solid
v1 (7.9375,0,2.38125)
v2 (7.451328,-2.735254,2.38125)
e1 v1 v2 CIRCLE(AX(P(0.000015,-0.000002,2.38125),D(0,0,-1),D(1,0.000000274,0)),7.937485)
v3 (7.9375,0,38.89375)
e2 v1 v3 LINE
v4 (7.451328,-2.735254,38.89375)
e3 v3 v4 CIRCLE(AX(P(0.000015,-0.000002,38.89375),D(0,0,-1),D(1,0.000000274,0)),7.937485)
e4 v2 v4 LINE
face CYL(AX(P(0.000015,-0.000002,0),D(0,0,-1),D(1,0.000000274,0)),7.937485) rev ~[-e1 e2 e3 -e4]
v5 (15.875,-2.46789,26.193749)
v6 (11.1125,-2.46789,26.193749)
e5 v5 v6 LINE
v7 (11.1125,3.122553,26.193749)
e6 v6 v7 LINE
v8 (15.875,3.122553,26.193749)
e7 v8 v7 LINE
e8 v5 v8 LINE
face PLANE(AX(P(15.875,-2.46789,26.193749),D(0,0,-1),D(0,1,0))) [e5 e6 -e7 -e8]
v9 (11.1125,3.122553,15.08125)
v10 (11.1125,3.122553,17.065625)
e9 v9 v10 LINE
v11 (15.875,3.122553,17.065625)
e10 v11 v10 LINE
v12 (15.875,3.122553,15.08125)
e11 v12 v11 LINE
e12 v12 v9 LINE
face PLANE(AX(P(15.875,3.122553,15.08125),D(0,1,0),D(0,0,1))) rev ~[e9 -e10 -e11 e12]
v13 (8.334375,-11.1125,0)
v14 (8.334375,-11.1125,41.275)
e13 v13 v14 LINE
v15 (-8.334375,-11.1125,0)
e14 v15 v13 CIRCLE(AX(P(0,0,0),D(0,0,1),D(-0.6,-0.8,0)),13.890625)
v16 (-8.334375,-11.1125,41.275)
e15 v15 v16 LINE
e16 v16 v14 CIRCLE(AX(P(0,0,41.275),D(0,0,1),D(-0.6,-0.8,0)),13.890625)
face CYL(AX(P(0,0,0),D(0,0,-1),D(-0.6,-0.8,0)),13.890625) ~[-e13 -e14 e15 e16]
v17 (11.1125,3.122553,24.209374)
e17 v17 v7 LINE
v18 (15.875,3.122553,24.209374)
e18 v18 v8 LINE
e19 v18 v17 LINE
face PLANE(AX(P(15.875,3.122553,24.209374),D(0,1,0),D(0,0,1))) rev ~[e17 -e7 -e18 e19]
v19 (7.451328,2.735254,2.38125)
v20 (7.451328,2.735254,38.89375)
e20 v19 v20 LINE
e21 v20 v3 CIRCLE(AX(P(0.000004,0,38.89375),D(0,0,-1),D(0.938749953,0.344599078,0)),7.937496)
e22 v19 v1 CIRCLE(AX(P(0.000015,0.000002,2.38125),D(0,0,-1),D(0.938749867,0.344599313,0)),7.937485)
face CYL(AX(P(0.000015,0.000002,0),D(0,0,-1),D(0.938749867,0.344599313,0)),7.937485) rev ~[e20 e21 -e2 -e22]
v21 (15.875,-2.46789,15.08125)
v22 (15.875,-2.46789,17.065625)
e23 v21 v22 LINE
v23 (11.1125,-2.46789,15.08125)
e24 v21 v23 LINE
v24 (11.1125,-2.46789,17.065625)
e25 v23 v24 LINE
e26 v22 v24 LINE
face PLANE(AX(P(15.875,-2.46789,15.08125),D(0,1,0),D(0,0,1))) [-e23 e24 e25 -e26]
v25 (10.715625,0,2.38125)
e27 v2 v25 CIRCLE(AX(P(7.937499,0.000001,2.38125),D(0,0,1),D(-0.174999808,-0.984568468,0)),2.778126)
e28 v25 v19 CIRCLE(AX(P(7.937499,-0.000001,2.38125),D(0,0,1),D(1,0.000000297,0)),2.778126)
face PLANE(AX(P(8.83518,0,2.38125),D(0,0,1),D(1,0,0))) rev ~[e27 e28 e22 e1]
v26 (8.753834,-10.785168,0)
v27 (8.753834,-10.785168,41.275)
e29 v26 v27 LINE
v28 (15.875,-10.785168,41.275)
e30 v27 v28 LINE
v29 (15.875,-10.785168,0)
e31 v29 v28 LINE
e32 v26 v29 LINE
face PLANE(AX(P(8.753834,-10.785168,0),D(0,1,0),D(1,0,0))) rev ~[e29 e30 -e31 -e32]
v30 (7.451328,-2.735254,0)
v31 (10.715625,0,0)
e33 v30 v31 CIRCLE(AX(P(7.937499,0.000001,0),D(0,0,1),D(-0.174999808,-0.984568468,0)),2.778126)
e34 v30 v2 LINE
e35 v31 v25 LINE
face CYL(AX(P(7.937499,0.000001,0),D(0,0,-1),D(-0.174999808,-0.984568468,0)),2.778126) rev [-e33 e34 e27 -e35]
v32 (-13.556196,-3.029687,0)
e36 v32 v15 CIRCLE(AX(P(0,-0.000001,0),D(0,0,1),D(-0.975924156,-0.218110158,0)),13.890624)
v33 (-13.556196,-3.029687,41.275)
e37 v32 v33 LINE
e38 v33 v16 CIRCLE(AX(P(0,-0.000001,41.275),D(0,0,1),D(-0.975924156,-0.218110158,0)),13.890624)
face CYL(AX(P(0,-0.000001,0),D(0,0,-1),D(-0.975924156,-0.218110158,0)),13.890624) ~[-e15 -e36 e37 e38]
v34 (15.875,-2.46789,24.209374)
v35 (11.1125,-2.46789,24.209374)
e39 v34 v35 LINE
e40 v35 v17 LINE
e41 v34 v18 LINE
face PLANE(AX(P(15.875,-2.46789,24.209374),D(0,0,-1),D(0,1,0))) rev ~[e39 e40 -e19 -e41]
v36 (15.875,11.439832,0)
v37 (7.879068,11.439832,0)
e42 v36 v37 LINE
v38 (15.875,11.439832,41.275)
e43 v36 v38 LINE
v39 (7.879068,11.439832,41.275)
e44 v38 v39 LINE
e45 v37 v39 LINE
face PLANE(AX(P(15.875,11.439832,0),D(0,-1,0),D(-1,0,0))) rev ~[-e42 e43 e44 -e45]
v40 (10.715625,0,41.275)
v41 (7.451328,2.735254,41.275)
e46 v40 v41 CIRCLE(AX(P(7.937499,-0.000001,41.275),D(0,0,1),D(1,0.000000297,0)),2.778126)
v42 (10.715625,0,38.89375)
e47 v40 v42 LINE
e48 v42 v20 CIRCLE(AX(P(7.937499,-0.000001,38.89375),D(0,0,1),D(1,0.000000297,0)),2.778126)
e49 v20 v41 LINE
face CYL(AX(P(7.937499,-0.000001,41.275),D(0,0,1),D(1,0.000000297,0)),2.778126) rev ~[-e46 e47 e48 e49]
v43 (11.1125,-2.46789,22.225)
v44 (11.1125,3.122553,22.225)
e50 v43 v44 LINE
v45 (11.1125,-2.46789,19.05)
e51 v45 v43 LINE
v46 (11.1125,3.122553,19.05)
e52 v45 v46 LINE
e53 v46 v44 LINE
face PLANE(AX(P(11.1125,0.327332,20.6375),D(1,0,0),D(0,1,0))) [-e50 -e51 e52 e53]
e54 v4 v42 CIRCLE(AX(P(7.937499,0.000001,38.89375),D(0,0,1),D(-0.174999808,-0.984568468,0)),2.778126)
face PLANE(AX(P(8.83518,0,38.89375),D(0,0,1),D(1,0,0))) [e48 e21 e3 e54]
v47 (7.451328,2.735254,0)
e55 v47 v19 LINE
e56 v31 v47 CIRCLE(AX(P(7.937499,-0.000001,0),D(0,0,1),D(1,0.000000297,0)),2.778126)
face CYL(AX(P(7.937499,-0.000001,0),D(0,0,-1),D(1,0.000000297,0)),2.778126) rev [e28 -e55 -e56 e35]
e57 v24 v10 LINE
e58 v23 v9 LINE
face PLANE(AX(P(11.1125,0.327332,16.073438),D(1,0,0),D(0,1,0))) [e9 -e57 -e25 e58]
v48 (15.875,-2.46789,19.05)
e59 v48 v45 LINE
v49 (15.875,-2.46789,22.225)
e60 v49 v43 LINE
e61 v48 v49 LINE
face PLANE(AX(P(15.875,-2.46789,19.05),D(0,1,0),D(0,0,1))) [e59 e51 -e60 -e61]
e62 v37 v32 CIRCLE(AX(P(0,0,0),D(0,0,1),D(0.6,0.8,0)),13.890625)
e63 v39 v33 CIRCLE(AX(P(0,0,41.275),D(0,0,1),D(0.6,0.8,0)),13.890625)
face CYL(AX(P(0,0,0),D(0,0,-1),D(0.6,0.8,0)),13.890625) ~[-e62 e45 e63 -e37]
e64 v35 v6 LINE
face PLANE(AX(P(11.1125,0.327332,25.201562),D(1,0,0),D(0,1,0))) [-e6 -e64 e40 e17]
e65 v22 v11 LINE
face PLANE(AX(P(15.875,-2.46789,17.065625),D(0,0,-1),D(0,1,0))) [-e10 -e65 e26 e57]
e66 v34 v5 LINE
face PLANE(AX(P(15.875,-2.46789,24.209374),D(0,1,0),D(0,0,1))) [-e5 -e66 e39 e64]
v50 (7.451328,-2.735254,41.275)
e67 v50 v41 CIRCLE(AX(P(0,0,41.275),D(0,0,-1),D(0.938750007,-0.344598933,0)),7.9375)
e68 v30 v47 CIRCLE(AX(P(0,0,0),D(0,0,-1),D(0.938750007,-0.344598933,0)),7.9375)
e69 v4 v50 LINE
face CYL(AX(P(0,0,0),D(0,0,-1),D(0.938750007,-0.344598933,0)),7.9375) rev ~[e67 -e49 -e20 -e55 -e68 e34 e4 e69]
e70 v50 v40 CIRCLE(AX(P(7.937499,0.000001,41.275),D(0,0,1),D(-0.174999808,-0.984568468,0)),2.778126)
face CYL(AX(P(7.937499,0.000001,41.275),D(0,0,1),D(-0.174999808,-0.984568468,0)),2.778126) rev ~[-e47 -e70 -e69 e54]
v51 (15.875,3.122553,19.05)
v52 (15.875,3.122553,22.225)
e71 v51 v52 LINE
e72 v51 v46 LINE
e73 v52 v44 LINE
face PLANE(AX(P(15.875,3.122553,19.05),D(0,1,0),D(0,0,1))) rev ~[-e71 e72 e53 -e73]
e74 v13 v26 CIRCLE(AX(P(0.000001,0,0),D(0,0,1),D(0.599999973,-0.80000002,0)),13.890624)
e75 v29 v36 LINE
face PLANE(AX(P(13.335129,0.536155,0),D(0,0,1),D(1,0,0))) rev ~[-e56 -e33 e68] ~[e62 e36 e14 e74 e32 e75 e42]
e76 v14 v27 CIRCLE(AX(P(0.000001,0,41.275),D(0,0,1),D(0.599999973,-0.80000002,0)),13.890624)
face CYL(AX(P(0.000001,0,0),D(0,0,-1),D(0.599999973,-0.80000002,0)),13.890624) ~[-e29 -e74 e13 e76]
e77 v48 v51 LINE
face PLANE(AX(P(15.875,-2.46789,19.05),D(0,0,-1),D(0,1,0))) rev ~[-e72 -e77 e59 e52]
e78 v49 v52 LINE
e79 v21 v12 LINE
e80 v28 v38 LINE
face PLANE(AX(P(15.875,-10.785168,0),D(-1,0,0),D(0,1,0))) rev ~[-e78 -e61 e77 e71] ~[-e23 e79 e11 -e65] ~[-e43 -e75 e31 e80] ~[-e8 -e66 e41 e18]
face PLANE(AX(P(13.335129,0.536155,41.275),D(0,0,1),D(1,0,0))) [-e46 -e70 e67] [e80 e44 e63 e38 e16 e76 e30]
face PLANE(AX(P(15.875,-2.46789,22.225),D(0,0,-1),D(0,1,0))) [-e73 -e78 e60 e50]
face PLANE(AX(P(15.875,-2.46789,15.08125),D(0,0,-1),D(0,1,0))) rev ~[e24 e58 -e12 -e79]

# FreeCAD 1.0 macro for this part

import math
import FreeCAD as App
import Part
import Sketcher
Q = App.Units.Quantity

doc = App.newDocument("Part")
params = doc.addObject("Spreadsheet::Sheet", "Params")
for row, (alias, value) in enumerate([
    ("sketch1_radius", "0.546875 in"),
    ("sketch1_radius2", "0.3125 in"),
    ("pad1_length", "1.625 in"),
    ("sketch2_radius", "0.546875 in"),
    ("sketch2_height", "0.875 in"),
    ("pad2_length", "1.625 in"),
    ("sketch3_height", "0.078125 in"),
    ("sketch3_height2", "0.125 in"),
    ("pocket1_length", "0.1875 in"),
    ("sketch4_radius", "0.109375 in"),
    ("pocket2_length", "0.09375 in"),
    ("sketch5_radius", "0.109375 in"),
    ("pocket3_length", "0.09375 in"),
], start=1):
    params.set(f"A{row}", alias)
    params.set(f"B{row}", "=" + value)
    params.setAlias(f"B{row}", alias)

body = doc.addObject("PartDesign::Body", "Body")

sketch1 = doc.addObject("Sketcher::SketchObject", "Sketch")
body.addObject(sketch1)
sketch1.AttachmentSupport = (doc.XY_Plane, [""])
sketch1.MapMode = "FlatFace"
sketch1.addGeometry([
    Part.ArcOfCircle(Part.Circle(App.Vector(0.000001, 0, 0), App.Vector(0, 0, 1), 13.890624), math.radians(-53.130104), math.radians(0.000002)),
    Part.ArcOfCircle(Part.Circle(App.Vector(0.000001, 0, 0), App.Vector(0, 0, 1), 13.890624), math.radians(-0.000002), math.radians(53.130104)),
    Part.ArcOfCircle(Part.Circle(App.Vector(0, 0, 0), App.Vector(0, 0, 1), 13.890625), math.radians(53.130102), math.radians(192.598061)),
    Part.ArcOfCircle(Part.Circle(App.Vector(0, -0.000001, 0), App.Vector(0, 0, 1), 13.890624), math.radians(-167.401942), math.radians(-126.869899)),
    Part.ArcOfCircle(Part.Circle(App.Vector(0, 0, 0), App.Vector(0, 0, 1), 13.890625), math.radians(-126.869898), math.radians(-53.130102)),
    Part.ArcOfCircle(Part.Circle(App.Vector(0, 0, 0), App.Vector(0, 0, 1), 7.9375), math.radians(20.157315), math.radians(339.842685)),
    Part.ArcOfCircle(Part.Circle(App.Vector(0.000015, 0.000002, 0), App.Vector(0, 0, 1), 7.937485), math.radians(-0.000016), math.radians(20.157338)),
    Part.ArcOfCircle(Part.Circle(App.Vector(0.000015, -0.000002, 0), App.Vector(0, 0, 1), 7.937485), math.radians(-20.157338), math.radians(0.000016)),
], False)
sketch1.addConstraint([
    Sketcher.Constraint("Tangent", 0, 2, 1, 1),
    Sketcher.Constraint("Tangent", 1, 2, 2, 1),
    Sketcher.Constraint("Tangent", 2, 2, 3, 1),
    Sketcher.Constraint("Tangent", 3, 2, 4, 1),
    Sketcher.Constraint("Tangent", 4, 2, 0, 1),
    Sketcher.Constraint("Tangent", 5, 1, 6, 2),
    Sketcher.Constraint("Tangent", 6, 1, 7, 2),
    Sketcher.Constraint("Tangent", 7, 1, 5, 2),
    Sketcher.Constraint("Coincident", 0, 3, -1, 1),
    Sketcher.Constraint("Coincident", 2, 3, -1, 1),
    Sketcher.Constraint("Coincident", 5, 3, -1, 1),
    Sketcher.Constraint("PointOnObject", 0, 2, -1),
    Sketcher.Constraint("PointOnObject", 6, 1, -1),
    Sketcher.Constraint("Horizontal", 3, 2, 4, 2),
    Sketcher.Constraint("Vertical", 1, 2, 4, 2),
    Sketcher.Constraint("Vertical", 5, 1, 7, 1),
    Sketcher.Constraint("Radius", 0, Q("0.546875 in")),
    Sketcher.Constraint("Radius", 5, Q("0.3125 in")),
    Sketcher.Constraint("DistanceX", -1, 1, 1, 2, Q("0.328125 in")),
    Sketcher.Constraint("DistanceX", -1, 1, 5, 1, 7.451328),
    Sketcher.Constraint("DistanceX", 2, 2, 3, 2, 5.221821),
])
sketch1.setExpression("Constraints[16]", "Params.sketch1_radius")
sketch1.setExpression("Constraints[17]", "Params.sketch1_radius2")
pad1 = doc.addObject("PartDesign::Pad", "Pad")
body.addObject(pad1)
pad1.Profile = sketch1
pad1.setExpression("Length", "Params.pad1_length")

sketch2 = doc.addObject("Sketcher::SketchObject", "Sketch001")
body.addObject(sketch2)
sketch2.AttachmentSupport = (doc.XY_Plane, [""])
sketch2.MapMode = "FlatFace"
sketch2.addGeometry([
    Part.ArcOfCircle(Part.Circle(App.Vector(0, 0, 0), App.Vector(0, 0, 1), 13.890625), math.radians(-0.000001), math.radians(55.443267)),
    Part.ArcOfCircle(Part.Circle(App.Vector(0.000002, -0.000001, 0), App.Vector(0, 0, 1), 13.890623), math.radians(-50.935324), math.radians(0.000002)),
    Part.LineSegment(App.Vector(8.753834, -10.785168, 0), App.Vector(15.875, -10.785168, 0)),
    Part.LineSegment(App.Vector(15.875, -10.785168, 0), App.Vector(15.875, 11.439832, 0)),
    Part.LineSegment(App.Vector(15.875, 11.439832, 0), App.Vector(7.879068, 11.439832, 0)),
], False)
sketch2.addConstraint([
    Sketcher.Constraint("Tangent", 0, 1, 1, 2),
    Sketcher.Constraint("Coincident", 1, 1, 2, 1),
    Sketcher.Constraint("Coincident", 2, 2, 3, 1),
    Sketcher.Constraint("Coincident", 3, 2, 4, 1),
    Sketcher.Constraint("Coincident", 4, 2, 0, 2),
    Sketcher.Constraint("Horizontal", 2),
    Sketcher.Constraint("Vertical", 3),
    Sketcher.Constraint("Horizontal", 4),
    Sketcher.Constraint("Coincident", 0, 3, -1, 1),
    Sketcher.Constraint("Equal", 0, 1),
    Sketcher.Constraint("PointOnObject", 0, 1, -1),
    Sketcher.Constraint("Radius", 0, Q("0.546875 in")),
    Sketcher.Constraint("DistanceY", 3, 1, 3, 2, Q("0.875 in")),
    Sketcher.Constraint("DistanceX", -1, 1, 2, 2, Q("0.625 in")),
    Sketcher.Constraint("DistanceX", 4, 2, 4, 1, 7.995932),
])
sketch2.setExpression("Constraints[11]", "Params.sketch2_radius")
sketch2.setExpression("Constraints[12]", "Params.sketch2_height")
pad2 = doc.addObject("PartDesign::Pad", "Pad001")
body.addObject(pad2)
pad2.Profile = sketch2
pad2.setExpression("Length", "Params.pad2_length")

sketch3 = doc.addObject("Sketcher::SketchObject", "Sketch002")
body.addObject(sketch3)
sketch3.AttachmentSupport = (doc.YZ_Plane, [""])
sketch3.MapMode = "FlatFace"
sketch3.AttachmentOffset = App.Placement(App.Vector(0, 0, 0.625 * 25.4), App.Rotation())
sketch3.addGeometry([
    Part.LineSegment(App.Vector(-2.46789, 26.193749, 0), App.Vector(-2.46789, 24.209374, 0)),
    Part.LineSegment(App.Vector(-2.46789, 24.209374, 0), App.Vector(3.122553, 24.209374, 0)),
    Part.LineSegment(App.Vector(3.122553, 24.209374, 0), App.Vector(3.122553, 26.193749, 0)),
    Part.LineSegment(App.Vector(3.122553, 26.193749, 0), App.Vector(-2.46789, 26.193749, 0)),
    Part.LineSegment(App.Vector(-2.46789, 22.225, 0), App.Vector(-2.46789, 19.05, 0)),
    Part.LineSegment(App.Vector(-2.46789, 19.05, 0), App.Vector(3.122553, 19.05, 0)),
    Part.LineSegment(App.Vector(3.122553, 19.05, 0), App.Vector(3.122553, 22.225, 0)),
    Part.LineSegment(App.Vector(3.122553, 22.225, 0), App.Vector(-2.46789, 22.225, 0)),
    Part.LineSegment(App.Vector(-2.46789, 17.065625, 0), App.Vector(-2.46789, 15.08125, 0)),
    Part.LineSegment(App.Vector(-2.46789, 15.08125, 0), App.Vector(3.122553, 15.08125, 0)),
    Part.LineSegment(App.Vector(3.122553, 15.08125, 0), App.Vector(3.122553, 17.065625, 0)),
    Part.LineSegment(App.Vector(3.122553, 17.065625, 0), App.Vector(-2.46789, 17.065625, 0)),
], False)
sketch3.addConstraint([
    Sketcher.Constraint("Coincident", 0, 2, 1, 1),
    Sketcher.Constraint("Coincident", 1, 2, 2, 1),
    Sketcher.Constraint("Coincident", 2, 2, 3, 1),
    Sketcher.Constraint("Coincident", 3, 2, 0, 1),
    Sketcher.Constraint("Coincident", 4, 2, 5, 1),
    Sketcher.Constraint("Coincident", 5, 2, 6, 1),
    Sketcher.Constraint("Coincident", 6, 2, 7, 1),
    Sketcher.Constraint("Coincident", 7, 2, 4, 1),
    Sketcher.Constraint("Coincident", 8, 2, 9, 1),
    Sketcher.Constraint("Coincident", 9, 2, 10, 1),
    Sketcher.Constraint("Coincident", 10, 2, 11, 1),
    Sketcher.Constraint("Coincident", 11, 2, 8, 1),
    Sketcher.Constraint("Vertical", 0),
    Sketcher.Constraint("Horizontal", 1),
    Sketcher.Constraint("Vertical", 2),
    Sketcher.Constraint("Horizontal", 3),
    Sketcher.Constraint("Vertical", 4),
    Sketcher.Constraint("Horizontal", 5),
    Sketcher.Constraint("Vertical", 6),
    Sketcher.Constraint("Horizontal", 7),
    Sketcher.Constraint("Vertical", 8),
    Sketcher.Constraint("Horizontal", 9),
    Sketcher.Constraint("Vertical", 10),
    Sketcher.Constraint("Horizontal", 11),
    Sketcher.Constraint("Vertical", 3, 2, 4, 2),
    Sketcher.Constraint("Vertical", 2, 2, 5, 2),
    Sketcher.Constraint("Vertical", 7, 2, 8, 2),
    Sketcher.Constraint("Vertical", 6, 2, 9, 2),
    Sketcher.Constraint("Equal", 2, 8),
    Sketcher.Constraint("DistanceY", 0, 2, 0, 1, Q("0.078125 in")),
    Sketcher.Constraint("DistanceY", 4, 2, 4, 1, Q("0.125 in")),
    Sketcher.Constraint("DistanceY", -1, 1, 4, 2, Q("0.75 in")),
    Sketcher.Constraint("DistanceY", -1, 1, 0, 2, Q("0.953125 in")),
    Sketcher.Constraint("DistanceY", -1, 1, 8, 2, Q("0.59375 in")),
    Sketcher.Constraint("DistanceX", 1, 1, 1, 2, 5.590443),
    Sketcher.Constraint("DistanceX", 0, 2, -1, 1, 2.46789),
])
sketch3.setExpression("Constraints[29]", "Params.sketch3_height")
sketch3.setExpression("Constraints[30]", "Params.sketch3_height2")
pocket1 = doc.addObject("PartDesign::Pocket", "Pocket")
body.addObject(pocket1)
pocket1.Profile = sketch3
pocket1.setExpression("Length", "Params.pocket1_length")

sketch4 = doc.addObject("Sketcher::SketchObject", "Sketch003")
body.addObject(sketch4)
sketch4.AttachmentSupport = (doc.XY_Plane, [""])
sketch4.MapMode = "FlatFace"
sketch4.AttachmentOffset = App.Placement(App.Vector(0, 0, 1.625 * 25.4), App.Rotation())
sketch4.addGeometry([
    Part.ArcOfCircle(Part.Circle(App.Vector(7.937499, 0.000001, 0), App.Vector(0, 0, 1), 2.778126), math.radians(-100.078647), math.radians(-0.000017)),
    Part.ArcOfCircle(Part.Circle(App.Vector(7.937499, -0.000001, 0), App.Vector(0, 0, 1), 2.778126), math.radians(0.000017), math.radians(100.078647)),
    Part.ArcOfCircle(Part.Circle(App.Vector(0.000004, 0, 0), App.Vector(0, 0, 1), 7.937496), math.radians(-0.000001), math.radians(20.157324)),
    Part.ArcOfCircle(Part.Circle(App.Vector(0.000015, -0.000002, 0), App.Vector(0, 0, 1), 7.937485), math.radians(-20.157338), math.radians(0.000016)),
], False)
sketch4.addConstraint([
    Sketcher.Constraint("Tangent", 0, 2, 1, 1),
    Sketcher.Constraint("Coincident", 1, 2, 2, 2),
    Sketcher.Constraint("Tangent", 2, 1, 3, 2),
    Sketcher.Constraint("Coincident", 3, 1, 0, 1),
    Sketcher.Constraint("Coincident", 2, 3, -1, 1),
    Sketcher.Constraint("Coincident", 2, 1, 0, 3),
    Sketcher.Constraint("Equal", 0, 1),
    Sketcher.Constraint("Symmetric", 1, 2, 3, 1, -1),
    Sketcher.Constraint("PointOnObject", 0, 2, -1),
    Sketcher.Constraint("Radius", 0, Q("0.109375 in")),
    Sketcher.Constraint("Radius", 2, Q("0.3124998 in")),
])
sketch4.setExpression("Constraints[9]", "Params.sketch4_radius")
pocket2 = doc.addObject("PartDesign::Pocket", "Pocket001")
body.addObject(pocket2)
pocket2.Profile = sketch4
pocket2.setExpression("Length", "Params.pocket2_length")

sketch5 = doc.addObject("Sketcher::SketchObject", "Sketch004")
body.addObject(sketch5)
sketch5.AttachmentSupport = (doc.XY_Plane, [""])
sketch5.MapMode = "FlatFace"
sketch5.addGeometry([
    Part.ArcOfCircle(Part.Circle(App.Vector(0.000015, 0.000002, 0), App.Vector(0, 0, 1), 7.937485), math.radians(-0.000016), math.radians(20.157338)),
    Part.ArcOfCircle(Part.Circle(App.Vector(0.000015, -0.000002, 0), App.Vector(0, 0, 1), 7.937485), math.radians(-20.157338), math.radians(0.000016)),
    Part.ArcOfCircle(Part.Circle(App.Vector(7.937499, 0.000001, 0), App.Vector(0, 0, 1), 2.778126), math.radians(-100.078647), math.radians(-0.000017)),
    Part.ArcOfCircle(Part.Circle(App.Vector(7.937499, -0.000001, 0), App.Vector(0, 0, 1), 2.778126), math.radians(0.000017), math.radians(100.078647)),
], False)
sketch5.addConstraint([
    Sketcher.Constraint("Tangent", 0, 1, 1, 2),
    Sketcher.Constraint("Coincident", 1, 1, 2, 1),
    Sketcher.Constraint("Tangent", 2, 2, 3, 1),
    Sketcher.Constraint("Coincident", 3, 2, 0, 2),
    Sketcher.Constraint("Coincident", 0, 1, 2, 3),
    Sketcher.Constraint("Equal", 0, 1),
    Sketcher.Constraint("Equal", 2, 3),
    Sketcher.Constraint("Symmetric", 1, 1, 3, 2, -1),
    Sketcher.Constraint("PointOnObject", 2, 2, -1),
    Sketcher.Constraint("Radius", 2, Q("0.109375 in")),
    Sketcher.Constraint("DistanceX", -1, 1, 2, 3, Q("0.3125 in")),
    Sketcher.Constraint("Radius", 0, 7.937485),
])
sketch5.setExpression("Constraints[9]", "Params.sketch5_radius")
pocket3 = doc.addObject("PartDesign::Pocket", "Pocket002")
body.addObject(pocket3)
pocket3.Profile = sketch5
pocket3.setExpression("Length", "Params.pocket3_length")
pocket3.Reversed = True

doc.recompute()
